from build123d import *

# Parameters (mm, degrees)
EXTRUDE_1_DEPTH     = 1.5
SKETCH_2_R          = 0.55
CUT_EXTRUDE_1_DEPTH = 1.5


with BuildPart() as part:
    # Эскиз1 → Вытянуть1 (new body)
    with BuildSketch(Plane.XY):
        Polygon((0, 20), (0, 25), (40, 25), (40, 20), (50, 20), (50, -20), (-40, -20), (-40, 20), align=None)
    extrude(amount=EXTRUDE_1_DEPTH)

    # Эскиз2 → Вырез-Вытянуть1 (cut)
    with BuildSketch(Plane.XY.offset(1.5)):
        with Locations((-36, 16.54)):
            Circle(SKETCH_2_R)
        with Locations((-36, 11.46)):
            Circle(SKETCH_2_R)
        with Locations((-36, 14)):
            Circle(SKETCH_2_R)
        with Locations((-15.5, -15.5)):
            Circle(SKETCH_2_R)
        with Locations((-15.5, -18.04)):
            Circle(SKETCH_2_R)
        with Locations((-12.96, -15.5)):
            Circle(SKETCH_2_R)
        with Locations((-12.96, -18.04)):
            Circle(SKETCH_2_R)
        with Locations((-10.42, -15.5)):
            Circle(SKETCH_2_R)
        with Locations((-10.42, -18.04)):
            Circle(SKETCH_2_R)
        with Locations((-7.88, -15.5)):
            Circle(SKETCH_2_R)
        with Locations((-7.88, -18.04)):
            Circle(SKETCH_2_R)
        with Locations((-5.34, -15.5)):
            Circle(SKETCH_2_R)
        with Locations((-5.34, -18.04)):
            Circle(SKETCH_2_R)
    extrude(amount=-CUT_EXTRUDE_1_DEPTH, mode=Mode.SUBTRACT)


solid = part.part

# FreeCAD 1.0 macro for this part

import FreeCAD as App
import Part
import Sketcher
from FreeCAD import Vector
Q = App.Units.Quantity


def add_polygon(sketch, points):
    """Adds a closed chain of lines whose ends are joined by coincident constraints."""
    first, n = sketch.GeometryCount, len(points)
    for a, b in zip(points, points[1:] + points[:1]):
        sketch.addGeometry(Part.LineSegment(App.Vector(*a, 0), App.Vector(*b, 0)), False)
    for i in range(n):
        sketch.addConstraint(Sketcher.Constraint("Coincident", first + i, 2, first + (i + 1) % n, 1))

doc = App.newDocument("Part")
body = doc.addObject("PartDesign::Body", "Body")

# Sketch on XY plane
sketch1 = body.newObject("Sketcher::SketchObject", "Sketch")
sketch1.AttachmentSupport = (doc.getObject("XY_Plane"), [""])
sketch1.MapMode = "FlatFace"
add_polygon(sketch1, [(0, 25), (0, 20), (-40, 20), (-40, -20), (50, -20), (50, 20), (40, 20), (40, 25)])  # lines 0-7
sketch1.addConstraint(Sketcher.Constraint("Vertical", 0))
sketch1.addConstraint(Sketcher.Constraint("Horizontal", 1))
sketch1.addConstraint(Sketcher.Constraint("Vertical", 2))
sketch1.addConstraint(Sketcher.Constraint("Horizontal", 3))
sketch1.addConstraint(Sketcher.Constraint("Vertical", 4))
sketch1.addConstraint(Sketcher.Constraint("Horizontal", 5))
sketch1.addConstraint(Sketcher.Constraint("Vertical", 6))
sketch1.addConstraint(Sketcher.Constraint("Horizontal", 7))
sketch1.addConstraint(Sketcher.Constraint("Symmetric", 2, 2, 5, 2, -1, 1))
sketch1.addConstraint(Sketcher.Constraint("PointOnObject", 0, 2, -2))
sketch1.addConstraint(Sketcher.Constraint("Horizontal", 1, 2, 4, 2))
sketch1.addConstraint(Sketcher.Constraint("Equal", 7, 2))
sketch1.addConstraint(Sketcher.Constraint("DistanceX", 1, 2, 1, 1, Q("40 mm")))
sketch1.addConstraint(Sketcher.Constraint("DistanceX", 3, 1, 3, 2, Q("90 mm")))
sketch1.addConstraint(Sketcher.Constraint("DistanceY", 0, 2, 0, 1, Q("5 mm")))
pad1 = body.newObject("PartDesign::Pad", "Pad")
pad1.Profile = sketch1
pad1.Length = 1.5

# Sketch on XY plane
sketch2 = body.newObject("Sketcher::SketchObject", "Sketch001")
sketch2.AttachmentSupport = (doc.getObject("XY_Plane"), [""])
sketch2.MapMode = "FlatFace"
sketch2.AttachmentOffset = App.Placement(Vector(0, 0, 1.5), App.Rotation())
sketch2.addGeometry(Part.Circle(Vector(-36, 16.5, 0), Vector(0, 0, 1), 0.6), False)
sketch2.addGeometry(Part.Circle(Vector(-36, 11.5, 0), Vector(0, 0, 1), 0.6), False)
sketch2.addGeometry(Part.Circle(Vector(-36, 14, 0), Vector(0, 0, 1), 0.6), False)
sketch2.addGeometry(Part.Circle(Vector(-15.5, -15.5, 0), Vector(0, 0, 1), 0.6), False)
sketch2.addGeometry(Part.Circle(Vector(-15.5, -18, 0), Vector(0, 0, 1), 0.6), False)
sketch2.addGeometry(Part.Circle(Vector(-13, -15.5, 0), Vector(0, 0, 1), 0.6), False)
sketch2.addGeometry(Part.Circle(Vector(-13, -18, 0), Vector(0, 0, 1), 0.6), False)
sketch2.addGeometry(Part.Circle(Vector(-10.4, -15.5, 0), Vector(0, 0, 1), 0.6), False)
sketch2.addGeometry(Part.Circle(Vector(-10.4, -18, 0), Vector(0, 0, 1), 0.6), False)
sketch2.addGeometry(Part.Circle(Vector(-7.9, -15.5, 0), Vector(0, 0, 1), 0.6), False)
sketch2.addGeometry(Part.Circle(Vector(-7.9, -18, 0), Vector(0, 0, 1), 0.6), False)
sketch2.addGeometry(Part.Circle(Vector(-5.3, -15.5, 0), Vector(0, 0, 1), 0.6), False)
sketch2.addGeometry(Part.Circle(Vector(-5.3, -18, 0), Vector(0, 0, 1), 0.6), False)
sketch2.addConstraint(Sketcher.Constraint("Equal", 0, 1))
sketch2.addConstraint(Sketcher.Constraint("Equal", 1, 2))
sketch2.addConstraint(Sketcher.Constraint("Equal", 2, 3))
sketch2.addConstraint(Sketcher.Constraint("Equal", 3, 4))
sketch2.addConstraint(Sketcher.Constraint("Equal", 4, 5))
sketch2.addConstraint(Sketcher.Constraint("Equal", 5, 6))
sketch2.addConstraint(Sketcher.Constraint("Equal", 6, 7))
sketch2.addConstraint(Sketcher.Constraint("Equal", 7, 8))
sketch2.addConstraint(Sketcher.Constraint("Equal", 8, 9))
sketch2.addConstraint(Sketcher.Constraint("Equal", 9, 10))
sketch2.addConstraint(Sketcher.Constraint("Equal", 10, 11))
sketch2.addConstraint(Sketcher.Constraint("Equal", 11, 12))
sketch2.addConstraint(Sketcher.Constraint("Horizontal", 3, 3, 5, 3))
sketch2.addConstraint(Sketcher.Constraint("Horizontal", 4, 3, 6, 3))
sketch2.addConstraint(Sketcher.Constraint("Horizontal", 5, 3, 7, 3))
sketch2.addConstraint(Sketcher.Constraint("Horizontal", 6, 3, 8, 3))
sketch2.addConstraint(Sketcher.Constraint("Horizontal", 7, 3, 9, 3))
sketch2.addConstraint(Sketcher.Constraint("Horizontal", 8, 3, 10, 3))
sketch2.addConstraint(Sketcher.Constraint("Horizontal", 9, 3, 11, 3))
sketch2.addConstraint(Sketcher.Constraint("Horizontal", 10, 3, 12, 3))
sketch2.addConstraint(Sketcher.Constraint("Vertical", 0, 3, 1, 3))
sketch2.addConstraint(Sketcher.Constraint("Vertical", 1, 3, 2, 3))
sketch2.addConstraint(Sketcher.Constraint("Vertical", 3, 3, 4, 3))
sketch2.addConstraint(Sketcher.Constraint("Vertical", 5, 3, 6, 3))
sketch2.addConstraint(Sketcher.Constraint("Vertical", 7, 3, 8, 3))
sketch2.addConstraint(Sketcher.Constraint("Vertical", 9, 3, 10, 3))
sketch2.addConstraint(Sketcher.Constraint("Vertical", 11, 3, 12, 3))
sketch2.addConstraint(Sketcher.Constraint("Diameter", 0, Q("1.1 mm")))
sketch2.addConstraint(Sketcher.Constraint("DistanceX", 0, 3, -1, 1, Q("36 mm")))
sketch2.addConstraint(Sketcher.Constraint("DistanceY", -1, 1, 2, 3, Q("14 mm")))
sketch2.addConstraint(Sketcher.Constraint("DistanceX", 3, 3, -1, 1, Q("15.5 mm")))
sketch2.addConstraint(Sketcher.Constraint("DistanceY", 3, 3, -1, 1, Q("15.5 mm")))
sketch2.addConstraint(Sketcher.Constraint("DistanceY", 4, 3, 1, 3, Q("29.5 mm")))
sketch2.addConstraint(Sketcher.Constraint("DistanceY", -1, 1, 0, 3, Q("16.54 mm")))
sketch2.addConstraint(Sketcher.Constraint("DistanceY", -1, 1, 1, 3, Q("11.46 mm")))
sketch2.addConstraint(Sketcher.Constraint("DistanceX", 5, 3, -1, 1, Q("12.96 mm")))
sketch2.addConstraint(Sketcher.Constraint("DistanceX", 7, 3, -1, 1, Q("10.42 mm")))
sketch2.addConstraint(Sketcher.Constraint("DistanceX", 9, 3, -1, 1, Q("7.88 mm")))
sketch2.addConstraint(Sketcher.Constraint("DistanceX", 11, 3, -1, 1, Q("5.34 mm")))
pocket1 = body.newObject("PartDesign::Pocket", "Pocket")
pocket1.Profile = sketch2
pocket1.Length = 1.5

doc.recompute()
